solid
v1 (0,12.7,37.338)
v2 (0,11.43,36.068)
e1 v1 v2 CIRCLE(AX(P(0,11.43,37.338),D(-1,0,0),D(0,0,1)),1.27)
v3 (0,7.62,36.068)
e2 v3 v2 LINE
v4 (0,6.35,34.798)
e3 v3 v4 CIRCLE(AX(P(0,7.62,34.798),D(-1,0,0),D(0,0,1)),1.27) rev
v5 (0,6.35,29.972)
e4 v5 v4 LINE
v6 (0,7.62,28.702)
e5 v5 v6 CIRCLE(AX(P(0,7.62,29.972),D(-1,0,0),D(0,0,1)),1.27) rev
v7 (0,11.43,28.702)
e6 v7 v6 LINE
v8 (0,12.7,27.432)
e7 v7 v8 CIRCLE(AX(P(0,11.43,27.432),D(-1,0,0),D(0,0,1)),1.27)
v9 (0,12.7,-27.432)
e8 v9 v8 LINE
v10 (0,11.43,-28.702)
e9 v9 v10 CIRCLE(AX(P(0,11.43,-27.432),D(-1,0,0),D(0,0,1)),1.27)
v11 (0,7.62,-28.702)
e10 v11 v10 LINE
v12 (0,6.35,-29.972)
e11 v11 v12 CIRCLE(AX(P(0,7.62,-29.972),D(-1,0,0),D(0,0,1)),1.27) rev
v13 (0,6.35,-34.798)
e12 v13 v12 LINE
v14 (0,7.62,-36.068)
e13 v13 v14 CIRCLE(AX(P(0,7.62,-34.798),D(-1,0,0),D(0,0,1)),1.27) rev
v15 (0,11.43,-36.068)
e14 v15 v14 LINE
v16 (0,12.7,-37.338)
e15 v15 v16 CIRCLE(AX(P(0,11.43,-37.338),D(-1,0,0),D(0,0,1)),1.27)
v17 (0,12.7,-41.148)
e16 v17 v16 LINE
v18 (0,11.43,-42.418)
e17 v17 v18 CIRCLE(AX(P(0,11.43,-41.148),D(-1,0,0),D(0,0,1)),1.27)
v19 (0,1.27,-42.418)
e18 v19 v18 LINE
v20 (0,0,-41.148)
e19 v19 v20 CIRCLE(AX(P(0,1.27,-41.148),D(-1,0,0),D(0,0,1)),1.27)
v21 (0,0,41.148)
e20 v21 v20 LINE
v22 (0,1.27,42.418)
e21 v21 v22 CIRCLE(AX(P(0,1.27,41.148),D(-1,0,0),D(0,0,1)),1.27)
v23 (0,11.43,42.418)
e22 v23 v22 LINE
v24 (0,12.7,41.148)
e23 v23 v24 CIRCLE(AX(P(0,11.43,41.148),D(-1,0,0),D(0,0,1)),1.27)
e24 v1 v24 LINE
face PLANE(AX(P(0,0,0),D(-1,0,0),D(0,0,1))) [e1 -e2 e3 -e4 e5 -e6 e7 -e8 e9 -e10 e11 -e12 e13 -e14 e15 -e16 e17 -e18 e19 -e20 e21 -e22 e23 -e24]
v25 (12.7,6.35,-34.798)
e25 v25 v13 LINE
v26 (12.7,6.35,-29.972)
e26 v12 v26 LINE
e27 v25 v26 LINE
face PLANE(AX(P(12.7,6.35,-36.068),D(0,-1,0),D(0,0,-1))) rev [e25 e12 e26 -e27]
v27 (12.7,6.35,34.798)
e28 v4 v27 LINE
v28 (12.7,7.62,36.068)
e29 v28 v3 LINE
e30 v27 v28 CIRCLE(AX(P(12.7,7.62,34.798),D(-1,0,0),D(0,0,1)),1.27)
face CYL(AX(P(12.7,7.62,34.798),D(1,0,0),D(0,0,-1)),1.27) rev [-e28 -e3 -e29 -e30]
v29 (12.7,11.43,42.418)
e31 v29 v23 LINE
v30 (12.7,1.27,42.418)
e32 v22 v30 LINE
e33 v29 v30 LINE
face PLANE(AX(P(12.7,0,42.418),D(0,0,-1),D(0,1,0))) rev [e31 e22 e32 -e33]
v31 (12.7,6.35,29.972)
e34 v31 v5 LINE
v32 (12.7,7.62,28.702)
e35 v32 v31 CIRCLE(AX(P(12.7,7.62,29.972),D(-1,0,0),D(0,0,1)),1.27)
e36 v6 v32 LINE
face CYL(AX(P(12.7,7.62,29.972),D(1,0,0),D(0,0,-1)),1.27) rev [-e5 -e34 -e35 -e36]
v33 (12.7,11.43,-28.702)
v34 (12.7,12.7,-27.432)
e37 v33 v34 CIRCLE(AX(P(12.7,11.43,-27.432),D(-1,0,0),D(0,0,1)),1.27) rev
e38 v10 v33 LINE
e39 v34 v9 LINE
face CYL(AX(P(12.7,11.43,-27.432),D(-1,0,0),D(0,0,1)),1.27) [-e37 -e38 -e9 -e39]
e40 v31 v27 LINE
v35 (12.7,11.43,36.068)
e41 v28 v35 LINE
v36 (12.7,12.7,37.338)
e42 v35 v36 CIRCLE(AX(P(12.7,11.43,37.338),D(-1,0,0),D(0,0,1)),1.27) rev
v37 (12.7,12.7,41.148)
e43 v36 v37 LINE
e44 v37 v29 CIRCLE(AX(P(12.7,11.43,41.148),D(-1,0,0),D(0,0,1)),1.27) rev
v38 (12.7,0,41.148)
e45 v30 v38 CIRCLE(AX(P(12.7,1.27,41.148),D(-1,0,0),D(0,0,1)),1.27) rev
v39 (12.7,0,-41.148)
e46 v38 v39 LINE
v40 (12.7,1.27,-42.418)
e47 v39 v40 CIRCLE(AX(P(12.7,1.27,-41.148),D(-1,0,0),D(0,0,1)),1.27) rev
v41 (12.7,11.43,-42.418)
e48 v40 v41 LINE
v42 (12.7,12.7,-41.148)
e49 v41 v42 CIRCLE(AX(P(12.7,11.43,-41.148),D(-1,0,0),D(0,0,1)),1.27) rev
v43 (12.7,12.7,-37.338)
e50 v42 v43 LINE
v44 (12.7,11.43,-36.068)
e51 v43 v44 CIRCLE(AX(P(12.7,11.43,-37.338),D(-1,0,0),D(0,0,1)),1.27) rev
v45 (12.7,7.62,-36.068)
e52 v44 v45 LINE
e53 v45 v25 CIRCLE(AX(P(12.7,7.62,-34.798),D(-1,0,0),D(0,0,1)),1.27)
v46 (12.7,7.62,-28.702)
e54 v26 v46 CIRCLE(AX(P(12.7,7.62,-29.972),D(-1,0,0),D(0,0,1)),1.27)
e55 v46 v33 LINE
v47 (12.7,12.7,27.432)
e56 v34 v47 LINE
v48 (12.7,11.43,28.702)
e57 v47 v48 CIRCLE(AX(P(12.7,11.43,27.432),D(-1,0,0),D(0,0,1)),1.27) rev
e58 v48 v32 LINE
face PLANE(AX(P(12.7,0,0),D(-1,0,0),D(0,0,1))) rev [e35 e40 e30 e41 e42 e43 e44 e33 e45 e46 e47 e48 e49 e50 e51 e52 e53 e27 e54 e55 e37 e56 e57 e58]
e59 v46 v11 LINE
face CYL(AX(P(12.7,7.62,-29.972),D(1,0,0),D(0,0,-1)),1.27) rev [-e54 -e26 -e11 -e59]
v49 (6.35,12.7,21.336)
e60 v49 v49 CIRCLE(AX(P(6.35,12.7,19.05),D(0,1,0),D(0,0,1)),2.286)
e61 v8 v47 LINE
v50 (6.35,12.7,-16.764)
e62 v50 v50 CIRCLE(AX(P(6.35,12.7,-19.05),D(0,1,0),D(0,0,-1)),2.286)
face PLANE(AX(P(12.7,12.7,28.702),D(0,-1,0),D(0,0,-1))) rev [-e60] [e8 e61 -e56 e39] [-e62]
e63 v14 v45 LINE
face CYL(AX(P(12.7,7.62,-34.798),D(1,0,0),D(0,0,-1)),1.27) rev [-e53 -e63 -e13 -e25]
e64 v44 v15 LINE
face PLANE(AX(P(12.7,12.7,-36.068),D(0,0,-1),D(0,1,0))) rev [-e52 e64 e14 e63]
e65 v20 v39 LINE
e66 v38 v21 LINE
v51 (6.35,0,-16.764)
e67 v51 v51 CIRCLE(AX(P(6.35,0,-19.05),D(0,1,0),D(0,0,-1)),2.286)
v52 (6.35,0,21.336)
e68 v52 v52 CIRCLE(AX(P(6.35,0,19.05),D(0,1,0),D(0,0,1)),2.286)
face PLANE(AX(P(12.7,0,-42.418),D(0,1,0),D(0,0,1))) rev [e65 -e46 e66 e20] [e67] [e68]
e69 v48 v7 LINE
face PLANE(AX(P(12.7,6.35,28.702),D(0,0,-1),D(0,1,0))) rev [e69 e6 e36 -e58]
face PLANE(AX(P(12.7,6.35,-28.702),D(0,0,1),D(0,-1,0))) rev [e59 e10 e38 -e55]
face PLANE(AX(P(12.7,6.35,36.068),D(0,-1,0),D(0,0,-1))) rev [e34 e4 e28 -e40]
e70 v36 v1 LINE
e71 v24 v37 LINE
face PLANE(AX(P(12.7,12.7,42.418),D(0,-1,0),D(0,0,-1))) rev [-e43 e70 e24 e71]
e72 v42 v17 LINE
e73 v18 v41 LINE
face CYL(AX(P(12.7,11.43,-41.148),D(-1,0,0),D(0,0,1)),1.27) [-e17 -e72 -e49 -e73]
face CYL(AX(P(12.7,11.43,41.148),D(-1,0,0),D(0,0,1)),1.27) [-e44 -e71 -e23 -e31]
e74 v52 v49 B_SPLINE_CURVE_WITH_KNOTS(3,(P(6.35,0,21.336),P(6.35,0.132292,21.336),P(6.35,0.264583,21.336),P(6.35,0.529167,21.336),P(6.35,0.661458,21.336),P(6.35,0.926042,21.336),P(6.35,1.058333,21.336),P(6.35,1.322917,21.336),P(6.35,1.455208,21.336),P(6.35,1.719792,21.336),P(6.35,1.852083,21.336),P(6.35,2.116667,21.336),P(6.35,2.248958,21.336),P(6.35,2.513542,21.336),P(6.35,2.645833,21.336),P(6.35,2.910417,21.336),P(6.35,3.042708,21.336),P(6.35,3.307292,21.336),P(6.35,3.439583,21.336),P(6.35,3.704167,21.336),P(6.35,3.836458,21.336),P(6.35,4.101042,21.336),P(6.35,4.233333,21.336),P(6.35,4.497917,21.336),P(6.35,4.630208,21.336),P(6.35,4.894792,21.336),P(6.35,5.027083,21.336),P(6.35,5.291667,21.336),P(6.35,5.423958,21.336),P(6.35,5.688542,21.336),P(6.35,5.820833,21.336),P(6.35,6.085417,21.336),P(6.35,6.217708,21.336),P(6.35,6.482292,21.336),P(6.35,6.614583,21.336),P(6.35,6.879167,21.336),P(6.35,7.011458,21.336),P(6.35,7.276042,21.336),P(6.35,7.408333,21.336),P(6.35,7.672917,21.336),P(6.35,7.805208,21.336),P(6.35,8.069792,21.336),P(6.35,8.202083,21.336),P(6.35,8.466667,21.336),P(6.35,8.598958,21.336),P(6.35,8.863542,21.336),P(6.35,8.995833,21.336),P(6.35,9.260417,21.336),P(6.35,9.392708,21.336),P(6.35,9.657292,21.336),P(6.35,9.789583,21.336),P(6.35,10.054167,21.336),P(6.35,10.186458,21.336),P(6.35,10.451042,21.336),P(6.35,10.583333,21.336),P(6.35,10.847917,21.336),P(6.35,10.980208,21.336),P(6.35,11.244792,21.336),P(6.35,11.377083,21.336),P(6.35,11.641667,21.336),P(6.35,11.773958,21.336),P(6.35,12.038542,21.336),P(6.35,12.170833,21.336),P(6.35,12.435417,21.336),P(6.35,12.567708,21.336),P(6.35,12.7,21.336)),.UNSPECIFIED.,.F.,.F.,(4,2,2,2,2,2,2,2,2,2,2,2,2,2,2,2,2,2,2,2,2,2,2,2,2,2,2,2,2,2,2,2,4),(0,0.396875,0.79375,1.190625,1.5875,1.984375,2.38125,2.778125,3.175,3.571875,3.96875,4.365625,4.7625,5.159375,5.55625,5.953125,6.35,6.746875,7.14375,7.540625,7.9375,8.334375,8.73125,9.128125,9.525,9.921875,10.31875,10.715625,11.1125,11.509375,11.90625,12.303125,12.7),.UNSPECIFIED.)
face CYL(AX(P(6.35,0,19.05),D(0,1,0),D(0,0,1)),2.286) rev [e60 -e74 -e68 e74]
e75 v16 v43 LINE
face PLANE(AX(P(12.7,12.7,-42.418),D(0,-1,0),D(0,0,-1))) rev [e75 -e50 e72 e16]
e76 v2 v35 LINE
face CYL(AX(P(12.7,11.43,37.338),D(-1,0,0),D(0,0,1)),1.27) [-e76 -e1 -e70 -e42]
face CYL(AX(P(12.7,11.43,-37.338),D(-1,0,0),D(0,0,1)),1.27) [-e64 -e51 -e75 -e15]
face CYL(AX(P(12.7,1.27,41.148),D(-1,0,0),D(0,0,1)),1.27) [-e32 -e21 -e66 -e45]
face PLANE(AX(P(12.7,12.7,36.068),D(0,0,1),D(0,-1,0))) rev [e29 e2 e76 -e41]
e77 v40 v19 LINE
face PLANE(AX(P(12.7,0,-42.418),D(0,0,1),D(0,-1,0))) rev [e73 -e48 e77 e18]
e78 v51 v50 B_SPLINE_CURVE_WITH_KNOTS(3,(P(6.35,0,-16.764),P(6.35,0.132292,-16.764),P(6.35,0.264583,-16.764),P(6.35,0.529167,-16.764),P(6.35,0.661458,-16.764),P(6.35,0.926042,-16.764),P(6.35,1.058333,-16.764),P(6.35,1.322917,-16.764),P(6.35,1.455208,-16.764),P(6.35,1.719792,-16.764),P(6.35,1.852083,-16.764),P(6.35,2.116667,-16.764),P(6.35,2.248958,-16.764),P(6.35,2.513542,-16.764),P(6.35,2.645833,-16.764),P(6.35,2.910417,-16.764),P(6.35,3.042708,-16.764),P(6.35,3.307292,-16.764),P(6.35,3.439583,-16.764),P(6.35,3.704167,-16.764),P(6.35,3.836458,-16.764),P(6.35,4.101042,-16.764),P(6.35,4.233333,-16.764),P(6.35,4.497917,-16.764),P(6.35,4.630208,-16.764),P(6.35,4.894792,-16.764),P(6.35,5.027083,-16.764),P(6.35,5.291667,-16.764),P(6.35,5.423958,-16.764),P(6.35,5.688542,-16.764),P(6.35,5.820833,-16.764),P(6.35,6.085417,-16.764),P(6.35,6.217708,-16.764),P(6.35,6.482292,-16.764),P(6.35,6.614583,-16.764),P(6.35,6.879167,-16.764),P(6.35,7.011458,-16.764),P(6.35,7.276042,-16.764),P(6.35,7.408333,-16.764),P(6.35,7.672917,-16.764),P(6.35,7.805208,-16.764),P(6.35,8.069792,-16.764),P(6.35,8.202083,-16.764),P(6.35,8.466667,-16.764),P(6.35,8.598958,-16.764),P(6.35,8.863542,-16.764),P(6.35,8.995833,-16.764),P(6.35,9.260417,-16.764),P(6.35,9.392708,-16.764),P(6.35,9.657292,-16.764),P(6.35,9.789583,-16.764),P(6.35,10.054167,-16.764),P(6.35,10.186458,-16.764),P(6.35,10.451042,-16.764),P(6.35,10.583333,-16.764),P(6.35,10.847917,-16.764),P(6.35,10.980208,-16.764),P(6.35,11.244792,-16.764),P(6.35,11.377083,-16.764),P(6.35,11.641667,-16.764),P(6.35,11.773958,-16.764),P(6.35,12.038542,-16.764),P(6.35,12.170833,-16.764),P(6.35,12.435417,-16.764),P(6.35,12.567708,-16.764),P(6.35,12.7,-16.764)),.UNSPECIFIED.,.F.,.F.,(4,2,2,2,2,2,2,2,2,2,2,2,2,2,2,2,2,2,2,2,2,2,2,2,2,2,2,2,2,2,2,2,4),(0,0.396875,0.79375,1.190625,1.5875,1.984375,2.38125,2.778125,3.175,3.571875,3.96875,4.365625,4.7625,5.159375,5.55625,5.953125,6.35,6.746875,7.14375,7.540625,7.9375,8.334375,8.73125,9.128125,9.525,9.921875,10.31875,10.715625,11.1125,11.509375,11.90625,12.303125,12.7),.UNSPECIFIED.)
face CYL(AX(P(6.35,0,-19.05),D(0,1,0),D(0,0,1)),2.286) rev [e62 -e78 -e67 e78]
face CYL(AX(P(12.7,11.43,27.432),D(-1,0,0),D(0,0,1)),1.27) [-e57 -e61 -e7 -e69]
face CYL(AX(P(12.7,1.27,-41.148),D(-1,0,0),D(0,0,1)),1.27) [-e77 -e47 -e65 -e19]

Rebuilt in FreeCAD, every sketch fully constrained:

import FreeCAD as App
import Part
import Sketcher

V = App.Vector
Q = App.Units.Quantity


def edges_at(feature, points):
    """Names of the edges that pass closest to the given points."""
    edges = feature.Shape.Edges
    near = lambda p: min(range(len(edges)), key=lambda i: edges[i].distToShape(Part.Vertex(*p))[0])
    return sorted({f"Edge{near(p) + 1}" for p in points})

doc = App.newDocument("Part")
params = doc.addObject("Spreadsheet::Sheet", "Params")
for row, (alias, value) in enumerate([
    ("sketch1_width", "0.5 in"),
    ("sketch1_width2", "0.25 in"),
    ("sketch1_height", "3.34 in"),
    ("sketch1_height2", "0.29 in"),
    ("pad1_length", "0.5 in"),
    ("sketch2_diameter", "0.18 in"),
    ("pocket1_length", "0.5 in"),
    ("fillet_radius", "0.05 in"),
], start=1):
    params.set(f"A{row}", alias)
    params.set(f"B{row}", "=" + value)
    params.setAlias(f"B{row}", alias)

body = doc.addObject("PartDesign::Body", "Body")

# Sketch on YZ plane
sketch1 = doc.addObject("Sketcher::SketchObject", "Sketch")
body.addObject(sketch1)
sketch1.AttachmentSupport = (doc.YZ_Plane, [""])
sketch1.MapMode = "FlatFace"
sketch1.addGeometry([
    Part.LineSegment(V(0, 42, 0), V(0, -42, 0)),  # 0
    Part.LineSegment(V(0, -42, 0), V(13, -42, 0)),  # 1
    Part.LineSegment(V(13, -42, 0), V(13, -36, 0)),  # 2
    Part.LineSegment(V(13, -36, 0), V(6, -36, 0)),  # 3
    Part.LineSegment(V(6, -36, 0), V(6, -29, 0)),  # 4
    Part.LineSegment(V(6, -29, 0), V(13, -29, 0)),  # 5
    Part.LineSegment(V(13, -29, 0), V(13, 29, 0)),  # 6
    Part.LineSegment(V(13, 29, 0), V(6, 29, 0)),  # 7
    Part.LineSegment(V(6, 29, 0), V(6, 36, 0)),  # 8
    Part.LineSegment(V(6, 36, 0), V(13, 36, 0)),  # 9
    Part.LineSegment(V(13, 36, 0), V(13, 42, 0)),  # 10
    Part.LineSegment(V(13, 42, 0), V(0, 42, 0)),  # 11
], False)
sketch1.addConstraint([
    Sketcher.Constraint("Coincident", 0, 2, 1, 1),
    Sketcher.Constraint("Coincident", 1, 2, 2, 1),
    Sketcher.Constraint("Coincident", 2, 2, 3, 1),
    Sketcher.Constraint("Coincident", 3, 2, 4, 1),
    Sketcher.Constraint("Coincident", 4, 2, 5, 1),
    Sketcher.Constraint("Coincident", 5, 2, 6, 1),
    Sketcher.Constraint("Coincident", 6, 2, 7, 1),
    Sketcher.Constraint("Coincident", 7, 2, 8, 1),
    Sketcher.Constraint("Coincident", 8, 2, 9, 1),
    Sketcher.Constraint("Coincident", 9, 2, 10, 1),
    Sketcher.Constraint("Coincident", 10, 2, 11, 1),
    Sketcher.Constraint("Coincident", 11, 2, 0, 1),
    Sketcher.Constraint("Vertical", 0),
    Sketcher.Constraint("Horizontal", 1),
    Sketcher.Constraint("Vertical", 2),
    Sketcher.Constraint("Horizontal", 3),
    Sketcher.Constraint("Vertical", 4),
    Sketcher.Constraint("Horizontal", 5),
    Sketcher.Constraint("Vertical", 6),
    Sketcher.Constraint("Horizontal", 7),
    Sketcher.Constraint("Vertical", 8),
    Sketcher.Constraint("Horizontal", 9),
    Sketcher.Constraint("Vertical", 10),
    Sketcher.Constraint("Horizontal", 11),
    Sketcher.Constraint("Symmetric", 0, 2, 11, 2, -1, 1),
    Sketcher.Constraint("Symmetric", 4, 2, 7, 2, -1),
    Sketcher.Constraint("Symmetric", 2, 2, 9, 2, -1),
    Sketcher.Constraint("Vertical", 2, 2, 5, 2),
    Sketcher.Constraint("Equal", 9, 2),
    Sketcher.Constraint("DistanceX", 1, 1, 1, 2, Q("0.5 in")),
    Sketcher.Constraint("DistanceX", 3, 2, 3, 1, Q("0.25 in")),
    Sketcher.Constraint("DistanceY", 0, 2, 0, 1, Q("3.34 in")),
    Sketcher.Constraint("DistanceY", 4, 1, 4, 2, Q("0.29 in")),
])
sketch1.setExpression("Constraints[29]", "Params.sketch1_width")
sketch1.setExpression("Constraints[30]", "Params.sketch1_width2")
sketch1.setExpression("Constraints[31]", "Params.sketch1_height")
sketch1.setExpression("Constraints[32]", "Params.sketch1_height2")
pad1 = doc.addObject("PartDesign::Pad", "Pad")
body.addObject(pad1)
pad1.Profile = sketch1
pad1.setExpression("Length", "Params.pad1_length")

# Sketch on XZ plane
sketch2 = doc.addObject("Sketcher::SketchObject", "Sketch001")
body.addObject(sketch2)
sketch2.AttachmentSupport = (doc.XZ_Plane, [""])
sketch2.MapMode = "FlatFace"
sketch2.AttachmentOffset = App.Placement(V(0, 0, -0.5 * 25.4), App.Rotation())
sketch2.addGeometry([
    Part.Circle(V(6.3, 19.1, 0), V(0, 0, 1), 2.3),
    Part.Circle(V(6.3, -19.1, 0), V(0, 0, 1), 2.3),
], False)
sketch2.addConstraint([
    Sketcher.Constraint("Equal", 0, 1),
    Sketcher.Constraint("Symmetric", 0, 3, 1, 3, -1),
    Sketcher.Constraint("Diameter", 0, Q("0.18 in")),
    Sketcher.Constraint("DistanceY", 1, 3, 0, 3, Q("1.5 in")),
    Sketcher.Constraint("DistanceX", -1, 1, 0, 3, Q("0.25 in")),
])
sketch2.setExpression("Constraints[2]", "Params.sketch2_diameter")
pocket1 = doc.addObject("PartDesign::Pocket", "Pocket")
body.addObject(pocket1)
pocket1.Profile = sketch2
pocket1.setExpression("Length", "Params.pocket1_length")
pocket1.Reversed = True
doc.recompute()

fillet = doc.addObject("PartDesign::Fillet", "Fillet")
body.addObject(fillet)
fillet.Base = (pocket1, edges_at(pocket1, [
    (6.35, 12.7, 42.418),
    (6.35, 12.7, 36.068),
    (6.35, 6.35, 36.068),
    (6.35, 6.35, 28.702),
    (6.35, 12.7, 28.702),
    (6.35, 12.7, -28.702),
    (6.35, 6.35, -28.702),
    (6.35, 6.35, -36.068),
    (6.35, 12.7, -36.068),
    (6.35, 12.7, -42.418),
    (6.35, 0, -42.418),
    (6.35, 0, 42.418),
]))
fillet.setExpression("Radius", "Params.fillet_radius")

doc.recompute()
